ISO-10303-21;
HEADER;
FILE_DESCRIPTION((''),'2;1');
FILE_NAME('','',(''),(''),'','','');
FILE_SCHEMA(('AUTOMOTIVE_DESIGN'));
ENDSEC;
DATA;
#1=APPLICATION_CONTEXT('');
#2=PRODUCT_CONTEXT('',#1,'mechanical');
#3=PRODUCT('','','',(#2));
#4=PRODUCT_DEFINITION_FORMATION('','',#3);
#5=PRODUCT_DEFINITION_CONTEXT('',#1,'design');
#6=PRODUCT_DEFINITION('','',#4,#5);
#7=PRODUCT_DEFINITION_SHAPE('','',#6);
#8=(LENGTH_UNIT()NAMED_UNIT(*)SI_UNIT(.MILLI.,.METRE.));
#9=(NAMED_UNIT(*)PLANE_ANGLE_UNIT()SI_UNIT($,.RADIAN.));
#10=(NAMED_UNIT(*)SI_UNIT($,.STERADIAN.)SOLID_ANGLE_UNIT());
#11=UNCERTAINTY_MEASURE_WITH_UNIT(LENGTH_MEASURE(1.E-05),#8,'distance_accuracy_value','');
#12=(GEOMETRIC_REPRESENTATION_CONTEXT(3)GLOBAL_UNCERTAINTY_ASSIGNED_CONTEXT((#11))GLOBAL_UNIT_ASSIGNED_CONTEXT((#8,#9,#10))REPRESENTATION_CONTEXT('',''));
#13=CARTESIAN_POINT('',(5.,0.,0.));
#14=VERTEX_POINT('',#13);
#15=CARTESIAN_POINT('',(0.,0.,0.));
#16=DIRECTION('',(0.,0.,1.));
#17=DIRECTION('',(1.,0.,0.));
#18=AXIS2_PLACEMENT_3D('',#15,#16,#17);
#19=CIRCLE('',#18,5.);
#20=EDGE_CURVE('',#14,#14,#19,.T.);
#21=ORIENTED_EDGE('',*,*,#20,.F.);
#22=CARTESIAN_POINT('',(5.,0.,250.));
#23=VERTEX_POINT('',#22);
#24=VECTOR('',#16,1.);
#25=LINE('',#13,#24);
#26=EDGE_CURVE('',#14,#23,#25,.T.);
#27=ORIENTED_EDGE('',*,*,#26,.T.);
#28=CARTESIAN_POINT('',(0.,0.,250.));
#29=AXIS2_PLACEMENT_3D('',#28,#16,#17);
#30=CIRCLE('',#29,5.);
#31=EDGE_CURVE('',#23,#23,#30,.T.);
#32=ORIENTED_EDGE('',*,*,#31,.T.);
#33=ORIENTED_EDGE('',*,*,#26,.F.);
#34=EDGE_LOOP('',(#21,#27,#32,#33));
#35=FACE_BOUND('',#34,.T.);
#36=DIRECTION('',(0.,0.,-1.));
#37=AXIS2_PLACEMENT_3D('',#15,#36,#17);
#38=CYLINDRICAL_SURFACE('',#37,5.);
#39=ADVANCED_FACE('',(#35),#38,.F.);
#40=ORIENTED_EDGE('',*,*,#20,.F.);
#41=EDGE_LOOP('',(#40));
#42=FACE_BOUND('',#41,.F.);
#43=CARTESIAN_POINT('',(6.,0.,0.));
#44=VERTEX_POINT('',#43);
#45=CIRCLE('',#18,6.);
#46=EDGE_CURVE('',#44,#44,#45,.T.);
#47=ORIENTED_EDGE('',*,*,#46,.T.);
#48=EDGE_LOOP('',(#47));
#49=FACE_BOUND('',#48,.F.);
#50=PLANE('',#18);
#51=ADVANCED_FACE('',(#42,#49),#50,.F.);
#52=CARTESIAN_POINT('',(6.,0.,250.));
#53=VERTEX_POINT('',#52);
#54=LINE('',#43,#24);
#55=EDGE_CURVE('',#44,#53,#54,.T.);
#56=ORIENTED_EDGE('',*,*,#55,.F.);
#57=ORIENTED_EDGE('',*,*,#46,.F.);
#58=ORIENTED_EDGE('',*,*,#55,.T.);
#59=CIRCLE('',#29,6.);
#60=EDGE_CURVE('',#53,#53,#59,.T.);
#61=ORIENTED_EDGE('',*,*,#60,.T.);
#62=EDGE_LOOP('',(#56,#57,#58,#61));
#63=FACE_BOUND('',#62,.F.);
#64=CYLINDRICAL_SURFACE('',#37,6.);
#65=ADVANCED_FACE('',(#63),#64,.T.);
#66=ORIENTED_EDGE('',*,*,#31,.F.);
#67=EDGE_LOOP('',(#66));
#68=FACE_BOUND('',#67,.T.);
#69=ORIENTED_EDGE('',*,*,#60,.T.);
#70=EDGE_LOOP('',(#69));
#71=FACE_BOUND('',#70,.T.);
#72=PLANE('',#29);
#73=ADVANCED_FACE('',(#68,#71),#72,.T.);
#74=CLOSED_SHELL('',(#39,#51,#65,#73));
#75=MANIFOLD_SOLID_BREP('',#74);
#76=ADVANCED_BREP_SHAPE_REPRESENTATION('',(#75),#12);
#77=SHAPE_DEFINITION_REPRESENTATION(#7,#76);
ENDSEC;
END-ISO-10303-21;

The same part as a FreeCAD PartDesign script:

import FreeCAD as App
import Part
import Sketcher
from FreeCAD import Vector
Q = App.Units.Quantity

doc = App.newDocument("Part")
body = doc.addObject("PartDesign::Body", "Body")

# Sketch on XY plane
sketch1 = body.newObject("Sketcher::SketchObject", "Sketch")
sketch1.AttachmentSupport = (doc.getObject("XY_Plane"), [""])
sketch1.MapMode = "FlatFace"
sketch1.addGeometry([
    Part.Circle(Vector(0, 0, 0), Vector(0, 0, 1), 6),
    Part.Circle(Vector(0, 0, 0), Vector(0, 0, 1), 5),
], False)
sketch1.addConstraint([
    Sketcher.Constraint("Coincident", 0, 3, -1, 1),
    Sketcher.Constraint("Coincident", 1, 3, -1, 1),
    Sketcher.Constraint("Diameter", 0, Q("12 mm")),
    Sketcher.Constraint("Diameter", 1, Q("10 mm")),
])
pad1 = body.newObject("PartDesign::Pad", "Pad")
pad1.Profile = sketch1
pad1.Length = 250

doc.recompute()
